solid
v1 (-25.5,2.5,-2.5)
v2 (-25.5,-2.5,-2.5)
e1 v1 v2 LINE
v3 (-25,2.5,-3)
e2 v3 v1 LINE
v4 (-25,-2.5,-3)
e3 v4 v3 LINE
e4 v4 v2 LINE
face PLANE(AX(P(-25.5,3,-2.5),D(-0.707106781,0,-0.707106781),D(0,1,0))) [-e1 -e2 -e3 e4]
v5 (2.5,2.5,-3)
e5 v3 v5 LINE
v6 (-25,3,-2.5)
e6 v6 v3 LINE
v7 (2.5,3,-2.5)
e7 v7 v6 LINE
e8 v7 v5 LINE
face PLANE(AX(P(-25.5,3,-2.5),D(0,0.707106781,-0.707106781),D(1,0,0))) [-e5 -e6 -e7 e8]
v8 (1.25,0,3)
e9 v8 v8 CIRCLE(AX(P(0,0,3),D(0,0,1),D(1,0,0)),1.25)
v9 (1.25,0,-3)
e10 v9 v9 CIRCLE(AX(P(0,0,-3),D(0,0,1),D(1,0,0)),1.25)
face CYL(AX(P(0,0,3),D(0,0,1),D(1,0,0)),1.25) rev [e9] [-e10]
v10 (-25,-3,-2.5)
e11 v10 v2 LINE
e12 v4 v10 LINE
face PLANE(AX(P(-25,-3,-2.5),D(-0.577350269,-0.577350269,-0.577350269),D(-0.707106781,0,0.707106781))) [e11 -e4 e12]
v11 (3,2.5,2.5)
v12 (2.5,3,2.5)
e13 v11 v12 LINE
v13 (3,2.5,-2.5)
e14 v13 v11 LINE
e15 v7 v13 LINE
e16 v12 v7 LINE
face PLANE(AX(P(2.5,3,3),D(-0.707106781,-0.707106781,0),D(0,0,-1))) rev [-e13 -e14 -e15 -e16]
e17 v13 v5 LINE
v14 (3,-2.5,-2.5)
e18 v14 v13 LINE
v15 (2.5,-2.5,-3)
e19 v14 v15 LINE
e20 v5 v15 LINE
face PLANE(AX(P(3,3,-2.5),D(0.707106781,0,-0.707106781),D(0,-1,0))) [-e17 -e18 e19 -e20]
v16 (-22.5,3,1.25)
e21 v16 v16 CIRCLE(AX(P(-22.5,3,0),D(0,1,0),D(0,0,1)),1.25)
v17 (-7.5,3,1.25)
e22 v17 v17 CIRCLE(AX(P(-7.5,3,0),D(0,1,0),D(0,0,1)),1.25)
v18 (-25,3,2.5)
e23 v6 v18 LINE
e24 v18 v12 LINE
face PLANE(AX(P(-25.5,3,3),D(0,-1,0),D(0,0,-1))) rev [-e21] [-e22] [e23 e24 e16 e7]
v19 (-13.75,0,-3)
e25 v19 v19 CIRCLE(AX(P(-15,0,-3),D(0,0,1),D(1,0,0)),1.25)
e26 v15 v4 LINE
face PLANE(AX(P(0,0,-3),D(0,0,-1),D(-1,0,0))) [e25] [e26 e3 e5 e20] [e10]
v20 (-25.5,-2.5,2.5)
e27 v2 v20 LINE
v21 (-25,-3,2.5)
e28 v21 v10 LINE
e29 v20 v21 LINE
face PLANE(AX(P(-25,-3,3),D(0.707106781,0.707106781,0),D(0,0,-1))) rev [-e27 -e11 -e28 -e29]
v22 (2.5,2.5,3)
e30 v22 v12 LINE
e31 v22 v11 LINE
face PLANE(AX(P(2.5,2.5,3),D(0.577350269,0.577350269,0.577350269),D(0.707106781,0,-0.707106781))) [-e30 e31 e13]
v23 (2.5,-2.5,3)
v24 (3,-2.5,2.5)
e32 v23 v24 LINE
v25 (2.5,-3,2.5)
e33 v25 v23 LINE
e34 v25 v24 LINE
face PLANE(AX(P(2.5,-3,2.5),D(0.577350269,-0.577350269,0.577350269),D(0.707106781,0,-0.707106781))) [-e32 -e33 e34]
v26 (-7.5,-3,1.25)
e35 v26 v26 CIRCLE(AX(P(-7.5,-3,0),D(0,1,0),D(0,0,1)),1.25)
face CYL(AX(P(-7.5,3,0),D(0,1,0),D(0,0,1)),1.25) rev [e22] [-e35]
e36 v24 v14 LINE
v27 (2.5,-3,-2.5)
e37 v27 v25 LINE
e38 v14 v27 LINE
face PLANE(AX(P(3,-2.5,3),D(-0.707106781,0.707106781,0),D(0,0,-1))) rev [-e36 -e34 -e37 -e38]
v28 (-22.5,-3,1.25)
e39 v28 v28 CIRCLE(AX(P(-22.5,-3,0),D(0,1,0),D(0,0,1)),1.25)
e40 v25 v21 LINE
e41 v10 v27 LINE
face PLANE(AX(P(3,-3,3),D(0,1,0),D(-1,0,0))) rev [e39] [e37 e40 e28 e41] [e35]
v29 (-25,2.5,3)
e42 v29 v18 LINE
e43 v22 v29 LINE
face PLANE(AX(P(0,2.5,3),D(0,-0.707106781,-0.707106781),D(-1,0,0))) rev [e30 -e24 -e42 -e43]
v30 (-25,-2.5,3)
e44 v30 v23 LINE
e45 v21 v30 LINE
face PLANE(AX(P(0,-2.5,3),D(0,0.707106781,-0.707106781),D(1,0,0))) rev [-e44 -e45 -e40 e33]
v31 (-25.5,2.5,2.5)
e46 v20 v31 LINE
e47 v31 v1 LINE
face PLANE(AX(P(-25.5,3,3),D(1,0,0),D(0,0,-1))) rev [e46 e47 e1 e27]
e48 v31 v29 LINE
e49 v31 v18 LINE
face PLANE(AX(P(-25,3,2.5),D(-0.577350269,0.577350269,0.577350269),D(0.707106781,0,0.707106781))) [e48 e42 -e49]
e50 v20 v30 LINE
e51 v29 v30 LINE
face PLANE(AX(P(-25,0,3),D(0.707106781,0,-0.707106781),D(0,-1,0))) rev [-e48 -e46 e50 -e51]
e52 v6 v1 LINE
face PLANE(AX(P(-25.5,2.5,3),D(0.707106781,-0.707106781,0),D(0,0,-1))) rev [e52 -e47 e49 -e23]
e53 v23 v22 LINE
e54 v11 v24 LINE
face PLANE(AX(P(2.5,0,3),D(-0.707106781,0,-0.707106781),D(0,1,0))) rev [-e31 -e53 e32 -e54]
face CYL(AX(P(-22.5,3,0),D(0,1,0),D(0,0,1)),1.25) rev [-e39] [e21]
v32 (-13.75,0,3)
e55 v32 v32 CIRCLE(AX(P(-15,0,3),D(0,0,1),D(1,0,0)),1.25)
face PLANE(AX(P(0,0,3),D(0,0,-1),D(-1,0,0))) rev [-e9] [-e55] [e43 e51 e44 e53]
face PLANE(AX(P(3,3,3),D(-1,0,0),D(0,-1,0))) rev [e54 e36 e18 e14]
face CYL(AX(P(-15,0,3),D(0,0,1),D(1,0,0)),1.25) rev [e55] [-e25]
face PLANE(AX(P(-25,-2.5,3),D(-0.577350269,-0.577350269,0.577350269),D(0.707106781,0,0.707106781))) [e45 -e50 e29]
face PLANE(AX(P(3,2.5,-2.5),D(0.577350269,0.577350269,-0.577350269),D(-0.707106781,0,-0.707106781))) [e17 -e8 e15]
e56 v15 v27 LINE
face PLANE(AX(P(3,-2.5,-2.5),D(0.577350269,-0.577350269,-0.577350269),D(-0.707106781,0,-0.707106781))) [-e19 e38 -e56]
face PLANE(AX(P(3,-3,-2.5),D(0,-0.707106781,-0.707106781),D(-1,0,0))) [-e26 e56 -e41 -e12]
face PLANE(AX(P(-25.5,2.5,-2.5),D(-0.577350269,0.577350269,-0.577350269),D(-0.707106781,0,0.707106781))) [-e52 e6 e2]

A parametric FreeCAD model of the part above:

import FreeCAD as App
import Part
import Sketcher
from FreeCAD import Vector
Q = App.Units.Quantity


def edges_at(feature, points):
    """Names of the edges that pass closest to the given points."""
    edges = feature.Shape.Edges
    near = lambda p: min(range(len(edges)), key=lambda i: edges[i].distToShape(Part.Vertex(*p))[0])
    return sorted({f"Edge{near(p) + 1}" for p in points})

doc = App.newDocument("Part")
body = doc.addObject("PartDesign::Body", "Body")

sketch1 = body.newObject("Sketcher::SketchObject", "Sketch")
sketch1.AttachmentSupport = (doc.getObject("XY_Plane"), [""])
sketch1.MapMode = "FlatFace"
sketch1.addGeometry(Part.LineSegment(Vector(-25.5, 3, 0), Vector(-25.5, -3, 0)), False)
sketch1.addGeometry(Part.LineSegment(Vector(-25.5, -3, 0), Vector(3, -3, 0)), False)
sketch1.addGeometry(Part.LineSegment(Vector(3, -3, 0), Vector(3, 3, 0)), False)
sketch1.addGeometry(Part.LineSegment(Vector(3, 3, 0), Vector(-25.5, 3, 0)), False)
sketch1.addGeometry(Part.Circle(Vector(-15, 0, 0), Vector(0, 0, 1), 0.5), False)
sketch1.addGeometry(Part.Circle(Vector(0, 0, 0), Vector(0, 0, 1), 0.5), False)
sketch1.addConstraint(Sketcher.Constraint("Coincident", 0, 2, 1, 1))
sketch1.addConstraint(Sketcher.Constraint("Coincident", 1, 2, 2, 1))
sketch1.addConstraint(Sketcher.Constraint("Coincident", 2, 2, 3, 1))
sketch1.addConstraint(Sketcher.Constraint("Coincident", 3, 2, 0, 1))
sketch1.addConstraint(Sketcher.Constraint("Vertical", 0))
sketch1.addConstraint(Sketcher.Constraint("Horizontal", 1))
sketch1.addConstraint(Sketcher.Constraint("Vertical", 2))
sketch1.addConstraint(Sketcher.Constraint("Horizontal", 3))
sketch1.addConstraint(Sketcher.Constraint("Coincident", 5, 3, -1, 1))
sketch1.addConstraint(Sketcher.Constraint("Equal", 4, 5))
sketch1.addConstraint(Sketcher.Constraint("PointOnObject", 4, 3, -1))
sketch1.addConstraint(Sketcher.Constraint("Diameter", 4, Q("1 mm")))
sketch1.addConstraint(Sketcher.Constraint("DistanceY", 0, 2, 0, 1, Q("6 mm")))
sketch1.addConstraint(Sketcher.Constraint("DistanceX", 1, 1, 1, 2, Q("28.5 mm")))
sketch1.addConstraint(Sketcher.Constraint("DistanceX", 4, 3, -1, 1, Q("15 mm")))
sketch1.addConstraint(Sketcher.Constraint("DistanceY", 0, 2, -1, 1, Q("3 mm")))
sketch1.addConstraint(Sketcher.Constraint("DistanceX", -1, 1, 1, 2, Q("3 mm")))
pad1 = body.newObject("PartDesign::Pad", "Pad")
pad1.Profile = sketch1
pad1.Length = 6
pad1.Midplane = True

sketch2 = body.newObject("Sketcher::SketchObject", "Sketch001")
sketch2.AttachmentSupport = (doc.getObject("XY_Plane"), [""])
sketch2.MapMode = "FlatFace"
sketch2.AttachmentOffset = App.Placement(Vector(0, 0, 3), App.Rotation())
sketch2.addGeometry(Part.Circle(Vector(0, 0, 0), Vector(0, 0, 1), 1.2), False)
sketch2.addGeometry(Part.Circle(Vector(-15, 0, 0), Vector(0, 0, 1), 1.2), False)
sketch2.addConstraint(Sketcher.Constraint("Coincident", 0, 3, -1, 1))
sketch2.addConstraint(Sketcher.Constraint("Equal", 0, 1))
sketch2.addConstraint(Sketcher.Constraint("PointOnObject", 1, 3, -1))
sketch2.addConstraint(Sketcher.Constraint("Diameter", 0, Q("2.5 mm")))
sketch2.addConstraint(Sketcher.Constraint("DistanceX", 1, 3, -1, 1, Q("15 mm")))
doc.recompute()
hole = body.newObject("PartDesign::Hole", "Hole")
hole.Profile = sketch2
hole.ThreadType = "None"
hole.Diameter = 2.5
hole.DepthType = "ThroughAll"

sketch3 = body.newObject("Sketcher::SketchObject", "Sketch002")
sketch3.AttachmentSupport = (doc.getObject("XZ_Plane"), [""])
sketch3.MapMode = "FlatFace"
sketch3.AttachmentOffset = App.Placement(Vector(0, 0, -3), App.Rotation())
sketch3.addGeometry(Part.Circle(Vector(-7.5, 0, 0), Vector(0, 0, 1), 1.2), False)
sketch3.addGeometry(Part.Circle(Vector(-22.5, 0, 0), Vector(0, 0, 1), 1.2), False)
sketch3.addConstraint(Sketcher.Constraint("Equal", 0, 1))
sketch3.addConstraint(Sketcher.Constraint("PointOnObject", 0, 3, -1))
sketch3.addConstraint(Sketcher.Constraint("PointOnObject", 1, 3, -1))
sketch3.addConstraint(Sketcher.Constraint("Diameter", 0, Q("2.5 mm")))
sketch3.addConstraint(Sketcher.Constraint("DistanceX", 1, 3, 0, 3, Q("15 mm")))
sketch3.addConstraint(Sketcher.Constraint("DistanceX", 0, 3, -1, 1, Q("7.5 mm")))
doc.recompute()
hole2 = body.newObject("PartDesign::Hole", "Hole001")
hole2.Profile = sketch3
hole2.ThreadType = "None"
hole2.Diameter = 2.5
hole2.DepthType = "ThroughAll"
hole2.Reversed = True
doc.recompute()

chamfer = body.newObject("PartDesign::Chamfer", "Chamfer")
chamfer.Base = (hole2, edges_at(hole2, [
    (-11.25, -3, 3),
    (3, 0, 3),
    (-11.25, 3, 3),
    (3, 0, -3),
    (-11.25, -3, -3),
    (-25.5, 0, -3),
    (-11.25, 3, -3),
    (-25.5, 0, 3),
    (3, 3, 0),
    (3, -3, 0),
    (-25.5, -3, 0),
    (-25.5, 3, 0),
]))
chamfer.Size = 0.5

doc.recompute()
